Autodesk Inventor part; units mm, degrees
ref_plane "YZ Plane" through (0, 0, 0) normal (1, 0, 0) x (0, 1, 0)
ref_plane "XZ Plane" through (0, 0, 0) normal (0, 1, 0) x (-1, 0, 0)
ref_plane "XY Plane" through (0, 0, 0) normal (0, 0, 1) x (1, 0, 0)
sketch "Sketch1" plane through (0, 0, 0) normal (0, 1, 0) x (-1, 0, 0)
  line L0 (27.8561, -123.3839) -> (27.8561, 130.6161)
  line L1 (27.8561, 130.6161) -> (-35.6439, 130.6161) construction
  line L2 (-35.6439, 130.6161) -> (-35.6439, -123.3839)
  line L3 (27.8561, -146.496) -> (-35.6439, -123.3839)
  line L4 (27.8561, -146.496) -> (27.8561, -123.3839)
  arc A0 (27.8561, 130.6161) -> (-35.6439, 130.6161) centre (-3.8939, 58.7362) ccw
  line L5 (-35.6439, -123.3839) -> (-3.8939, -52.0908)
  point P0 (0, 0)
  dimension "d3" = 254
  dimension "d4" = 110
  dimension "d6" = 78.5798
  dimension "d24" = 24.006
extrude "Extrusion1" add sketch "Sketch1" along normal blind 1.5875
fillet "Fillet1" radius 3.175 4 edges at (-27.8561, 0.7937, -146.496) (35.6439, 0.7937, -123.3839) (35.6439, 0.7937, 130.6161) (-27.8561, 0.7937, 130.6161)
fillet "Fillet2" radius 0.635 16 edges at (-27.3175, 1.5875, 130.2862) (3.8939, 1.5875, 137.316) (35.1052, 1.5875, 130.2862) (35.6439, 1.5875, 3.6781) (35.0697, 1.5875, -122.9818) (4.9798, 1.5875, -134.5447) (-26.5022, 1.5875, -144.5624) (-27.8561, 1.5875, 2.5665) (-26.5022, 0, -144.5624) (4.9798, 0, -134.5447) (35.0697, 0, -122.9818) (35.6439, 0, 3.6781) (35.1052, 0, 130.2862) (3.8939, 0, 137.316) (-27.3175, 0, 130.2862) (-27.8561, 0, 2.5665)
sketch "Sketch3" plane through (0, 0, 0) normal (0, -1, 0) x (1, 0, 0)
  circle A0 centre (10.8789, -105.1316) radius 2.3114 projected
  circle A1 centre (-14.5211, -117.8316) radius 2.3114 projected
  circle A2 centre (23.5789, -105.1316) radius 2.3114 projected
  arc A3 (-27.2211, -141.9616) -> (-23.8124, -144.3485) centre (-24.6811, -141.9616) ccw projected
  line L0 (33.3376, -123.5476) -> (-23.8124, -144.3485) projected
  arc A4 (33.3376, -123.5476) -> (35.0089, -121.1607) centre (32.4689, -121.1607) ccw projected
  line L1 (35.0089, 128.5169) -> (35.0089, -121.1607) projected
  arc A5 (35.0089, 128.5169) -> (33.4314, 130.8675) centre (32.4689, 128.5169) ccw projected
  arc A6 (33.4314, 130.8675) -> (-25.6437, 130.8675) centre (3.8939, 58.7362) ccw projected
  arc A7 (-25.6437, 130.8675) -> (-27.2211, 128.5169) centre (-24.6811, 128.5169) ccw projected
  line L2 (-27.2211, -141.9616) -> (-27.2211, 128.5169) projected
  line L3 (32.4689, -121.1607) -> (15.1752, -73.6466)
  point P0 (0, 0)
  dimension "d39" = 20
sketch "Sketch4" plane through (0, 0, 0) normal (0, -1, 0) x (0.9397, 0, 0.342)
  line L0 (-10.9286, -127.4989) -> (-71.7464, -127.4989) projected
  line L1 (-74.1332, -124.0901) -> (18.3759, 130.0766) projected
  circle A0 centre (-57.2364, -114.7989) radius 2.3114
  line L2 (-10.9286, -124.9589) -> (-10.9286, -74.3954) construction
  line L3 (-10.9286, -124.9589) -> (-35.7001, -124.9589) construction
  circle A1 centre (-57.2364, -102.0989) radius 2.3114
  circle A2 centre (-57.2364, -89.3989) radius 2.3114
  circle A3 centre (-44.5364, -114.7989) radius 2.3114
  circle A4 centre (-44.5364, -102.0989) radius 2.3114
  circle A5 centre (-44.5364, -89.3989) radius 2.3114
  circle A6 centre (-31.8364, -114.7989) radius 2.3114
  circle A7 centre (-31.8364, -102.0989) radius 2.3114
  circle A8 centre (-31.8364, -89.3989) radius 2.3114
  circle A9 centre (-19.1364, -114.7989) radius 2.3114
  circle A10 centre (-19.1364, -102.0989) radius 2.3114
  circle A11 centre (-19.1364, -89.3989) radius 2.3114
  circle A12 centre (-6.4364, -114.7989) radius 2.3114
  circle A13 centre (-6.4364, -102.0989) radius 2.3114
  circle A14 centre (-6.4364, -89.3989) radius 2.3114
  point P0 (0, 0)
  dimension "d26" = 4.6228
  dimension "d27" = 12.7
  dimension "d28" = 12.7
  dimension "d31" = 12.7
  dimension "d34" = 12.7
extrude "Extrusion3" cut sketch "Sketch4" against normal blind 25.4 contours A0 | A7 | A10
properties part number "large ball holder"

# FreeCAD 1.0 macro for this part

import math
import FreeCAD as App
import Part
import Sketcher
from FreeCAD import Vector
Q = App.Units.Quantity


def edges_at(feature, points):
    """Names of the edges that pass closest to the given points."""
    edges = feature.Shape.Edges
    near = lambda p: min(range(len(edges)), key=lambda i: edges[i].distToShape(Part.Vertex(*p))[0])
    return sorted({f"Edge{near(p) + 1}" for p in points})

doc = App.newDocument("Part")
body = doc.addObject("PartDesign::Body", "Body")

# Sketch on XZ plane
sketch1 = body.newObject("Sketcher::SketchObject", "Sketch")
sketch1.AttachmentSupport = (doc.getObject("XZ_Plane"), [""])
sketch1.MapMode = "FlatFace"
sketch1.addGeometry(Part.LineSegment(Vector(-28, -146, 0), Vector(-28, 131, 0)), False)
sketch1.addGeometry(Part.ArcOfCircle(Part.Circle(Vector(4, 59, 0), Vector(0, 0, 1), 79), math.radians(66), math.radians(114)), False)
sketch1.addGeometry(Part.LineSegment(Vector(36, 131, 0), Vector(36, -123, 0)), False)
sketch1.addGeometry(Part.LineSegment(Vector(36, -123, 0), Vector(-28, -146, 0)), False)
sketch1.addConstraint(Sketcher.Constraint("Coincident", 0, 2, 1, 2))
sketch1.addConstraint(Sketcher.Constraint("Coincident", 1, 1, 2, 1))
sketch1.addConstraint(Sketcher.Constraint("Coincident", 2, 2, 3, 1))
sketch1.addConstraint(Sketcher.Constraint("Coincident", 3, 2, 0, 1))
sketch1.addConstraint(Sketcher.Constraint("Vertical", 0))
sketch1.addConstraint(Sketcher.Constraint("Vertical", 2))
sketch1.addConstraint(Sketcher.Constraint("Horizontal", 0, 2, 1, 1))
sketch1.addConstraint(Sketcher.Constraint("DistanceY", 2, 2, 2, 1, Q("10 in")))
sketch1.addConstraint(Sketcher.Constraint("Radius", 1, Q("3.0937 in")))
sketch1.addConstraint(Sketcher.Constraint("Angle", 3, Q("-160 deg")))
sketch1.addConstraint(Sketcher.Constraint("DistanceX", 0, 2, 1, 1, Q("2.5 in")))
sketch1.addConstraint(Sketcher.Constraint("DistanceX", -1, 1, 1, 3, Q("0.1533 in")))
sketch1.addConstraint(Sketcher.Constraint("DistanceY", -1, 1, 1, 3, Q("58.7362 mm")))
pad1 = body.newObject("PartDesign::Pad", "Pad")
pad1.Profile = sketch1
pad1.Length = Q("0.0625 in")
pad1.Reversed = True
doc.recompute()

fillet = body.newObject("PartDesign::Fillet", "Fillet")
fillet.Base = (pad1, edges_at(pad1, [
    (-27.856, 0.794, -146.496),
    (35.644, 0.794, -123.384),
    (35.644, 0.794, 130.616),
    (-27.856, 0.794, 130.616),
]))
fillet.Radius = Q("0.125 in")
doc.recompute()

fillet2 = body.newObject("PartDesign::Fillet", "Fillet001")
fillet2.Base = (fillet, edges_at(fillet, [
    (-27.317, 1.587, 130.286),
    (3.894, 1.587, 137.316),
    (35.105, 1.587, 130.286),
    (35.644, 1.587, 3.678),
    (35.07, 1.587, -122.982),
    (4.98, 1.587, -134.545),
    (-26.502, 1.587, -144.562),
    (-27.856, 1.587, 2.567),
    (-26.502, 0, -144.562),
    (4.98, 0, -134.545),
    (35.07, 0, -122.982),
    (35.644, 0, 3.678),
    (35.105, 0, 130.286),
    (3.894, 0, 137.316),
    (-27.317, 0, 130.286),
    (-27.856, 0, 2.567),
]))
fillet2.Radius = Q("0.025 in")

# Sketch on XZ plane
sketch2 = body.newObject("Sketcher::SketchObject", "Sketch001")
sketch2.AttachmentSupport = (doc.getObject("XZ_Plane"), [""])
sketch2.MapMode = "FlatFace"
sketch2.addGeometry(Part.Circle(Vector(-14.5, -127.5, 0), Vector(0, 0, 1), 2.3), False)
sketch2.addGeometry(Part.Circle(Vector(5, -106.8, 0), Vector(0, 0, 1), 2.3), False)
sketch2.addGeometry(Part.Circle(Vector(16.9, -102.5, 0), Vector(0, 0, 1), 2.3), False)
sketch2.addConstraint(Sketcher.Constraint("Equal", 0, 1))
sketch2.addConstraint(Sketcher.Constraint("Equal", 1, 2))
sketch2.addConstraint(Sketcher.Constraint("Diameter", 0, Q("0.182 in")))
sketch2.addConstraint(Sketcher.Constraint("DistanceY", 1, 3, 2, 3, Q("0.171 in")))
sketch2.addConstraint(Sketcher.Constraint("DistanceX", 0, 3, -1, 1, Q("0.5717 in")))
sketch2.addConstraint(Sketcher.Constraint("DistanceY", 2, 3, -1, 1, Q("4.0349 in")))
sketch2.addConstraint(Sketcher.Constraint("DistanceY", 0, 3, -1, 1, Q("127.4517 mm")))
sketch2.addConstraint(Sketcher.Constraint("DistanceX", -1, 1, 1, 3, Q("0.1969882 in")))
sketch2.addConstraint(Sketcher.Constraint("DistanceX", -1, 1, 2, 3, Q("16.9375 mm")))
pocket1 = body.newObject("PartDesign::Pocket", "Pocket")
pocket1.Profile = sketch2
pocket1.Length = Q("1 in")

doc.recompute()
